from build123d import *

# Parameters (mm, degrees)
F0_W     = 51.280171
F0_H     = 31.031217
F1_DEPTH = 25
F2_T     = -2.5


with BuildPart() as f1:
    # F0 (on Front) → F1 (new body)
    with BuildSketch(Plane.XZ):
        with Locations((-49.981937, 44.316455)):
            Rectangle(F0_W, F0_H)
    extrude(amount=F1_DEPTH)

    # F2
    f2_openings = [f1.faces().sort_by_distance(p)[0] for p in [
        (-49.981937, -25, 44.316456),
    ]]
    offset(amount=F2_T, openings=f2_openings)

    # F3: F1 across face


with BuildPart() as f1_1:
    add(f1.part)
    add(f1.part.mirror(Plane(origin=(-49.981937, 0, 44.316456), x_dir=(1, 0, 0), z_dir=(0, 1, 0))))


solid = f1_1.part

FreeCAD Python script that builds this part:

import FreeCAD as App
import Part
import Sketcher


def faces_at(feature, points):
    """Names of the faces that lie closest to the given points."""
    faces = feature.Shape.Faces
    near = lambda p: min(range(len(faces)), key=lambda i: faces[i].distToShape(Part.Vertex(*p))[0])
    return sorted({f"Face{near(p) + 1}" for p in points})


def add_polygon(sketch, points):
    """Adds a closed chain of lines whose ends are joined by coincident constraints."""
    first, n = sketch.GeometryCount, len(points)
    for a, b in zip(points, points[1:] + points[:1]):
        sketch.addGeometry(Part.LineSegment(App.Vector(*a, 0), App.Vector(*b, 0)), False)
    for i in range(n):
        sketch.addConstraint(Sketcher.Constraint("Coincident", first + i, 2, first + (i + 1) % n, 1))

doc = App.newDocument("Part")
body = doc.addObject("PartDesign::Body", "Body")

sketch1 = body.newObject("Sketcher::SketchObject", "Sketch")
sketch1.AttachmentSupport = (doc.getObject("XZ_Plane"), [""])
sketch1.MapMode = "FlatFace"
add_polygon(sketch1, [(-76, 60), (-76, 29), (-24, 29), (-24, 60)])
sketch1.addConstraint(Sketcher.Constraint("Vertical", 0))
sketch1.addConstraint(Sketcher.Constraint("Horizontal", 1))
sketch1.addConstraint(Sketcher.Constraint("Vertical", 2))
sketch1.addConstraint(Sketcher.Constraint("Horizontal", 3))
sketch1.addConstraint(Sketcher.Constraint("DistanceX", 1, 1, 1, 2, 51.280171))
sketch1.addConstraint(Sketcher.Constraint("DistanceY", 0, 2, 0, 1, 31.031217))
sketch1.addConstraint(Sketcher.Constraint("DistanceX", 1, 2, -1, 1, 24.341852))
sketch1.addConstraint(Sketcher.Constraint("DistanceY", -1, 1, 0, 2, 28.800846))
pad1 = body.newObject("PartDesign::Pad", "Pad")
pad1.Profile = sketch1
pad1.Length = 25
doc.recompute()

thickness = body.newObject("PartDesign::Thickness", "Thickness")
thickness.Base = (pad1, faces_at(pad1, [(-49.982, -25, 44.316)]))
thickness.Value = 2.5
thickness.Reversed = True
thickness.Join = "Arc"
body2 = doc.addObject("PartDesign::Body", "Body001")
doc.recompute()

body2.BaseFeature = body
doc.recompute()

mirroring = doc.addObject("Part::Mirroring", "Mirroring")
mirroring.Source = body
mirroring.Base = App.Vector(-49.981937, 0, 44.316456)
mirroring.Normal = App.Vector(0, 1, 0)
body3 = doc.addObject("PartDesign::Body", "Body002")
body3.BaseFeature = mirroring
boolean = body2.newObject("PartDesign::Boolean", "Boolean")
boolean.Type = "Fuse"
boolean.addObjects([body3])
doc.recompute()
mirroring.Visibility = False

doc.recompute()
